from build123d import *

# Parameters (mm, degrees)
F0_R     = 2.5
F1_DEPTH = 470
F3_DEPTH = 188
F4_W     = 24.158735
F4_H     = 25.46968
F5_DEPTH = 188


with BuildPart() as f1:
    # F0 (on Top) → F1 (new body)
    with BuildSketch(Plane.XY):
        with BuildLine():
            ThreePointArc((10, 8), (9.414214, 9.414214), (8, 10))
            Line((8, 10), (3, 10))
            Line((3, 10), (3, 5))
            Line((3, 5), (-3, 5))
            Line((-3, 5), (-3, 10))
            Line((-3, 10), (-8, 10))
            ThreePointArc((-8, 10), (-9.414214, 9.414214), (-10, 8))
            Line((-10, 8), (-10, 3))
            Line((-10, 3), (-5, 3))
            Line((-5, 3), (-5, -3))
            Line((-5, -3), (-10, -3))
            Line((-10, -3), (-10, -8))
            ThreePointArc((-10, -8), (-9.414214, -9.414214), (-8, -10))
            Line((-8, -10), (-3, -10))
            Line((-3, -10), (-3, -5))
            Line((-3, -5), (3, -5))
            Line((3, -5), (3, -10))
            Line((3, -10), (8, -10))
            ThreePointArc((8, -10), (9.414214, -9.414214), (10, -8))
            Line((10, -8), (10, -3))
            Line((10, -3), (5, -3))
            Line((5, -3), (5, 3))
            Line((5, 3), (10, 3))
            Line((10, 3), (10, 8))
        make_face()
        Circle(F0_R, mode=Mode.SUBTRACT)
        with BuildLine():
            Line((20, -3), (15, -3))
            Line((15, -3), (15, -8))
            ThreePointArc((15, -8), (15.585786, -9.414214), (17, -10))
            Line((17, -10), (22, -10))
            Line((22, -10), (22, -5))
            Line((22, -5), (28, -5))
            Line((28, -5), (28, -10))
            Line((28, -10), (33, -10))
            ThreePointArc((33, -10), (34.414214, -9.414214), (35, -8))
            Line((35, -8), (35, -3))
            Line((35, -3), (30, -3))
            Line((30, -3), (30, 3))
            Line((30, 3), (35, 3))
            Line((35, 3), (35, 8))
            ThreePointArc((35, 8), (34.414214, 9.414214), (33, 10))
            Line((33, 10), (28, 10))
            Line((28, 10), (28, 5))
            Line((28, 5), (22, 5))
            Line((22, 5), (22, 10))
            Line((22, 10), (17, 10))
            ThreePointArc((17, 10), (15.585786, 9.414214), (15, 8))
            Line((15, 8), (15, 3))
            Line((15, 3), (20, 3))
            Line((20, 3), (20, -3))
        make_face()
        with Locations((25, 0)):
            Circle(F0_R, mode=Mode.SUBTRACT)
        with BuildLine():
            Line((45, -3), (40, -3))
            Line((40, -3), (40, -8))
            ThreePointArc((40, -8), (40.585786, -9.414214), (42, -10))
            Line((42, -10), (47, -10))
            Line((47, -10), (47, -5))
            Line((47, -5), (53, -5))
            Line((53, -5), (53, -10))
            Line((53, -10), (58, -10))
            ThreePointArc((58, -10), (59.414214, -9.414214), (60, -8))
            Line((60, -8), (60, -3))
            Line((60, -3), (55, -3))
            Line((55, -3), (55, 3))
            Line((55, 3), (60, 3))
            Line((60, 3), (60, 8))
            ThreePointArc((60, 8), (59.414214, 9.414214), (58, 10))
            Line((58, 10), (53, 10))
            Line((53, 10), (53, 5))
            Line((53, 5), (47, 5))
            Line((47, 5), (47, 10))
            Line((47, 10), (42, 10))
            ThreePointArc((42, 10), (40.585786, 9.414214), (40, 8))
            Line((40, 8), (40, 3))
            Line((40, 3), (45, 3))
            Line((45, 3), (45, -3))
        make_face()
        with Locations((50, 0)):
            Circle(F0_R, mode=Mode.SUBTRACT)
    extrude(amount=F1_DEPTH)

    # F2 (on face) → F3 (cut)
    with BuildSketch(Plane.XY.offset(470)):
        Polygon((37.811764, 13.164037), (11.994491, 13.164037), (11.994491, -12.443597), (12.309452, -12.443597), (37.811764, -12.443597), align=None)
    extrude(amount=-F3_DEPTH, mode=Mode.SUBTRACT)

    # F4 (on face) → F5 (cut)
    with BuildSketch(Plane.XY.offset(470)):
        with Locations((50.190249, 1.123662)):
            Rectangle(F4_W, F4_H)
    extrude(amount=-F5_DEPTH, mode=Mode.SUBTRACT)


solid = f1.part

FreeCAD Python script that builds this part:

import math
import FreeCAD as App
import Part
import Sketcher
from FreeCAD import Vector


def add_polygon(sketch, points):
    """Adds a closed chain of lines whose ends are joined by coincident constraints."""
    first, n = sketch.GeometryCount, len(points)
    for a, b in zip(points, points[1:] + points[:1]):
        sketch.addGeometry(Part.LineSegment(App.Vector(*a, 0), App.Vector(*b, 0)), False)
    for i in range(n):
        sketch.addConstraint(Sketcher.Constraint("Coincident", first + i, 2, first + (i + 1) % n, 1))

doc = App.newDocument("Part")
body = doc.addObject("PartDesign::Body", "Body")
body.AllowCompound = True

# Sketch on XY plane
sketch1 = body.newObject("Sketcher::SketchObject", "Sketch")
sketch1.AttachmentSupport = (doc.getObject("XY_Plane"), [""])
sketch1.MapMode = "FlatFace"
sketch1.addGeometry(Part.ArcOfCircle(Part.Circle(Vector(8.000001, 8.000001, 0), Vector(0, 0, 1), 1.999999), math.radians(-0.000043), math.radians(90.000043)), False)
sketch1.addGeometry(Part.LineSegment(Vector(8, 10, 0), Vector(3, 10, 0)), False)
sketch1.addGeometry(Part.LineSegment(Vector(3, 10, 0), Vector(3, 5, 0)), False)
sketch1.addGeometry(Part.LineSegment(Vector(3, 5, 0), Vector(-3, 5, 0)), False)
sketch1.addGeometry(Part.LineSegment(Vector(-3, 5, 0), Vector(-3, 10, 0)), False)
sketch1.addGeometry(Part.LineSegment(Vector(-3, 10, 0), Vector(-8, 10, 0)), False)
sketch1.addGeometry(Part.ArcOfCircle(Part.Circle(Vector(-8.000001, 8.000001, 0), Vector(0, 0, 1), 1.999999), math.radians(89.999957), math.radians(180.000043)), False)
sketch1.addGeometry(Part.LineSegment(Vector(-10, 8, 0), Vector(-10, 3, 0)), False)
sketch1.addGeometry(Part.LineSegment(Vector(-10, 3, 0), Vector(-5, 3, 0)), False)
sketch1.addGeometry(Part.LineSegment(Vector(-5, 3, 0), Vector(-5, -3, 0)), False)
sketch1.addGeometry(Part.LineSegment(Vector(-5, -3, 0), Vector(-10, -3, 0)), False)
sketch1.addGeometry(Part.LineSegment(Vector(-10, -3, 0), Vector(-10, -8, 0)), False)
sketch1.addGeometry(Part.ArcOfCircle(Part.Circle(Vector(-8.000001, -8.000001, 0), Vector(0, 0, 1), 1.999999), math.radians(179.999957), math.radians(270.000043)), False)
sketch1.addGeometry(Part.LineSegment(Vector(-8, -10, 0), Vector(-3, -10, 0)), False)
sketch1.addGeometry(Part.LineSegment(Vector(-3, -10, 0), Vector(-3, -5, 0)), False)
sketch1.addGeometry(Part.LineSegment(Vector(-3, -5, 0), Vector(3, -5, 0)), False)
sketch1.addGeometry(Part.LineSegment(Vector(3, -5, 0), Vector(3, -10, 0)), False)
sketch1.addGeometry(Part.LineSegment(Vector(3, -10, 0), Vector(8, -10, 0)), False)
sketch1.addGeometry(Part.ArcOfCircle(Part.Circle(Vector(8.000001, -8.000001, 0), Vector(0, 0, 1), 1.999999), math.radians(-90.000043), math.radians(0.000043)), False)
sketch1.addGeometry(Part.LineSegment(Vector(10, -8, 0), Vector(10, -3, 0)), False)
sketch1.addGeometry(Part.LineSegment(Vector(10, -3, 0), Vector(5, -3, 0)), False)
sketch1.addGeometry(Part.LineSegment(Vector(5, -3, 0), Vector(5, 3, 0)), False)
sketch1.addGeometry(Part.LineSegment(Vector(5, 3, 0), Vector(10, 3, 0)), False)
sketch1.addGeometry(Part.LineSegment(Vector(10, 3, 0), Vector(10, 8, 0)), False)
sketch1.addGeometry(Part.Circle(Vector(0, 0, 0), Vector(0, 0, 1), 2.5), False)
sketch1.addGeometry(Part.LineSegment(Vector(20, -3, 0), Vector(15, -3, 0)), False)
sketch1.addGeometry(Part.LineSegment(Vector(15, -3, 0), Vector(15, -8, 0)), False)
sketch1.addGeometry(Part.ArcOfCircle(Part.Circle(Vector(16.999999, -8.000001, 0), Vector(0, 0, 1), 1.999999), math.radians(179.999957), math.radians(270.000043)), False)
sketch1.addGeometry(Part.LineSegment(Vector(17, -10, 0), Vector(22, -10, 0)), False)
sketch1.addGeometry(Part.LineSegment(Vector(22, -10, 0), Vector(22, -5, 0)), False)
sketch1.addGeometry(Part.LineSegment(Vector(22, -5, 0), Vector(28, -5, 0)), False)
sketch1.addGeometry(Part.LineSegment(Vector(28, -5, 0), Vector(28, -10, 0)), False)
sketch1.addGeometry(Part.LineSegment(Vector(28, -10, 0), Vector(33, -10, 0)), False)
sketch1.addGeometry(Part.ArcOfCircle(Part.Circle(Vector(33.000001, -8.000001, 0), Vector(0, 0, 1), 1.999999), math.radians(-90.000043), math.radians(0.000043)), False)
sketch1.addGeometry(Part.LineSegment(Vector(35, -8, 0), Vector(35, -3, 0)), False)
sketch1.addGeometry(Part.LineSegment(Vector(35, -3, 0), Vector(30, -3, 0)), False)
sketch1.addGeometry(Part.LineSegment(Vector(30, -3, 0), Vector(30, 3, 0)), False)
sketch1.addGeometry(Part.LineSegment(Vector(30, 3, 0), Vector(35, 3, 0)), False)
sketch1.addGeometry(Part.LineSegment(Vector(35, 3, 0), Vector(35, 8, 0)), False)
sketch1.addGeometry(Part.ArcOfCircle(Part.Circle(Vector(33.000001, 8.000001, 0), Vector(0, 0, 1), 1.999999), math.radians(-0.000043), math.radians(90.000043)), False)
sketch1.addGeometry(Part.LineSegment(Vector(33, 10, 0), Vector(28, 10, 0)), False)
sketch1.addGeometry(Part.LineSegment(Vector(28, 10, 0), Vector(28, 5, 0)), False)
sketch1.addGeometry(Part.LineSegment(Vector(28, 5, 0), Vector(22, 5, 0)), False)
sketch1.addGeometry(Part.LineSegment(Vector(22, 5, 0), Vector(22, 10, 0)), False)
sketch1.addGeometry(Part.LineSegment(Vector(22, 10, 0), Vector(17, 10, 0)), False)
sketch1.addGeometry(Part.ArcOfCircle(Part.Circle(Vector(16.999999, 8.000001, 0), Vector(0, 0, 1), 1.999999), math.radians(89.999957), math.radians(180.000043)), False)
sketch1.addGeometry(Part.LineSegment(Vector(15, 8, 0), Vector(15, 3, 0)), False)
sketch1.addGeometry(Part.LineSegment(Vector(15, 3, 0), Vector(20, 3, 0)), False)
sketch1.addGeometry(Part.LineSegment(Vector(20, 3, 0), Vector(20, -3, 0)), False)
sketch1.addGeometry(Part.Circle(Vector(25, 0, 0), Vector(0, 0, 1), 2.5), False)
sketch1.addGeometry(Part.LineSegment(Vector(45, -3, 0), Vector(40, -3, 0)), False)
sketch1.addGeometry(Part.LineSegment(Vector(40, -3, 0), Vector(40, -8, 0)), False)
sketch1.addGeometry(Part.ArcOfCircle(Part.Circle(Vector(41.999999, -8.000001, 0), Vector(0, 0, 1), 1.999999), math.radians(179.999957), math.radians(270.000043)), False)
sketch1.addGeometry(Part.LineSegment(Vector(42, -10, 0), Vector(47, -10, 0)), False)
sketch1.addGeometry(Part.LineSegment(Vector(47, -10, 0), Vector(47, -5, 0)), False)
sketch1.addGeometry(Part.LineSegment(Vector(47, -5, 0), Vector(53, -5, 0)), False)
sketch1.addGeometry(Part.LineSegment(Vector(53, -5, 0), Vector(53, -10, 0)), False)
sketch1.addGeometry(Part.LineSegment(Vector(53, -10, 0), Vector(58, -10, 0)), False)
sketch1.addGeometry(Part.ArcOfCircle(Part.Circle(Vector(58.000001, -8.000001, 0), Vector(0, 0, 1), 1.999999), math.radians(-90.000043), math.radians(0.000043)), False)
sketch1.addGeometry(Part.LineSegment(Vector(60, -8, 0), Vector(60, -3, 0)), False)
sketch1.addGeometry(Part.LineSegment(Vector(60, -3, 0), Vector(55, -3, 0)), False)
sketch1.addGeometry(Part.LineSegment(Vector(55, -3, 0), Vector(55, 3, 0)), False)
sketch1.addGeometry(Part.LineSegment(Vector(55, 3, 0), Vector(60, 3, 0)), False)
sketch1.addGeometry(Part.LineSegment(Vector(60, 3, 0), Vector(60, 8, 0)), False)
sketch1.addGeometry(Part.ArcOfCircle(Part.Circle(Vector(58.000001, 8.000001, 0), Vector(0, 0, 1), 1.999999), math.radians(-0.000043), math.radians(90.000043)), False)
sketch1.addGeometry(Part.LineSegment(Vector(58, 10, 0), Vector(53, 10, 0)), False)
sketch1.addGeometry(Part.LineSegment(Vector(53, 10, 0), Vector(53, 5, 0)), False)
sketch1.addGeometry(Part.LineSegment(Vector(53, 5, 0), Vector(47, 5, 0)), False)
sketch1.addGeometry(Part.LineSegment(Vector(47, 5, 0), Vector(47, 10, 0)), False)
sketch1.addGeometry(Part.LineSegment(Vector(47, 10, 0), Vector(42, 10, 0)), False)
sketch1.addGeometry(Part.ArcOfCircle(Part.Circle(Vector(41.999999, 8.000001, 0), Vector(0, 0, 1), 1.999999), math.radians(89.999957), math.radians(180.000043)), False)
sketch1.addGeometry(Part.LineSegment(Vector(40, 8, 0), Vector(40, 3, 0)), False)
sketch1.addGeometry(Part.LineSegment(Vector(40, 3, 0), Vector(45, 3, 0)), False)
sketch1.addGeometry(Part.LineSegment(Vector(45, 3, 0), Vector(45, -3, 0)), False)
sketch1.addGeometry(Part.Circle(Vector(50, 0, 0), Vector(0, 0, 1), 2.5), False)
sketch1.addConstraint(Sketcher.Constraint("Tangent", 0, 2, 1, 1))
sketch1.addConstraint(Sketcher.Constraint("Coincident", 1, 2, 2, 1))
sketch1.addConstraint(Sketcher.Constraint("Coincident", 2, 2, 3, 1))
sketch1.addConstraint(Sketcher.Constraint("Coincident", 3, 2, 4, 1))
sketch1.addConstraint(Sketcher.Constraint("Coincident", 4, 2, 5, 1))
sketch1.addConstraint(Sketcher.Constraint("Tangent", 5, 2, 6, 1))
sketch1.addConstraint(Sketcher.Constraint("Tangent", 6, 2, 7, 1))
sketch1.addConstraint(Sketcher.Constraint("Coincident", 7, 2, 8, 1))
sketch1.addConstraint(Sketcher.Constraint("Coincident", 8, 2, 9, 1))
sketch1.addConstraint(Sketcher.Constraint("Coincident", 9, 2, 10, 1))
sketch1.addConstraint(Sketcher.Constraint("Coincident", 10, 2, 11, 1))
sketch1.addConstraint(Sketcher.Constraint("Tangent", 11, 2, 12, 1))
sketch1.addConstraint(Sketcher.Constraint("Tangent", 12, 2, 13, 1))
sketch1.addConstraint(Sketcher.Constraint("Coincident", 13, 2, 14, 1))
sketch1.addConstraint(Sketcher.Constraint("Coincident", 14, 2, 15, 1))
sketch1.addConstraint(Sketcher.Constraint("Coincident", 15, 2, 16, 1))
sketch1.addConstraint(Sketcher.Constraint("Coincident", 16, 2, 17, 1))
sketch1.addConstraint(Sketcher.Constraint("Tangent", 17, 2, 18, 1))
sketch1.addConstraint(Sketcher.Constraint("Tangent", 18, 2, 19, 1))
sketch1.addConstraint(Sketcher.Constraint("Coincident", 19, 2, 20, 1))
sketch1.addConstraint(Sketcher.Constraint("Coincident", 20, 2, 21, 1))
sketch1.addConstraint(Sketcher.Constraint("Coincident", 21, 2, 22, 1))
sketch1.addConstraint(Sketcher.Constraint("Coincident", 22, 2, 23, 1))
sketch1.addConstraint(Sketcher.Constraint("Tangent", 23, 2, 0, 1))
sketch1.addConstraint(Sketcher.Constraint("Coincident", 25, 2, 26, 1))
sketch1.addConstraint(Sketcher.Constraint("Tangent", 26, 2, 27, 1))
sketch1.addConstraint(Sketcher.Constraint("Tangent", 27, 2, 28, 1))
sketch1.addConstraint(Sketcher.Constraint("Coincident", 28, 2, 29, 1))
sketch1.addConstraint(Sketcher.Constraint("Coincident", 29, 2, 30, 1))
sketch1.addConstraint(Sketcher.Constraint("Coincident", 30, 2, 31, 1))
sketch1.addConstraint(Sketcher.Constraint("Coincident", 31, 2, 32, 1))
sketch1.addConstraint(Sketcher.Constraint("Tangent", 32, 2, 33, 1))
sketch1.addConstraint(Sketcher.Constraint("Tangent", 33, 2, 34, 1))
sketch1.addConstraint(Sketcher.Constraint("Coincident", 34, 2, 35, 1))
sketch1.addConstraint(Sketcher.Constraint("Coincident", 35, 2, 36, 1))
sketch1.addConstraint(Sketcher.Constraint("Coincident", 36, 2, 37, 1))
sketch1.addConstraint(Sketcher.Constraint("Coincident", 37, 2, 38, 1))
sketch1.addConstraint(Sketcher.Constraint("Tangent", 38, 2, 39, 1))
sketch1.addConstraint(Sketcher.Constraint("Tangent", 39, 2, 40, 1))
sketch1.addConstraint(Sketcher.Constraint("Coincident", 40, 2, 41, 1))
sketch1.addConstraint(Sketcher.Constraint("Coincident", 41, 2, 42, 1))
sketch1.addConstraint(Sketcher.Constraint("Coincident", 42, 2, 43, 1))
sketch1.addConstraint(Sketcher.Constraint("Coincident", 43, 2, 44, 1))
sketch1.addConstraint(Sketcher.Constraint("Tangent", 44, 2, 45, 1))
sketch1.addConstraint(Sketcher.Constraint("Tangent", 45, 2, 46, 1))
sketch1.addConstraint(Sketcher.Constraint("Coincident", 46, 2, 47, 1))
sketch1.addConstraint(Sketcher.Constraint("Coincident", 47, 2, 48, 1))
sketch1.addConstraint(Sketcher.Constraint("Coincident", 48, 2, 25, 1))
sketch1.addConstraint(Sketcher.Constraint("Coincident", 50, 2, 51, 1))
sketch1.addConstraint(Sketcher.Constraint("Tangent", 51, 2, 52, 1))
sketch1.addConstraint(Sketcher.Constraint("Tangent", 52, 2, 53, 1))
sketch1.addConstraint(Sketcher.Constraint("Coincident", 53, 2, 54, 1))
sketch1.addConstraint(Sketcher.Constraint("Coincident", 54, 2, 55, 1))
sketch1.addConstraint(Sketcher.Constraint("Coincident", 55, 2, 56, 1))
sketch1.addConstraint(Sketcher.Constraint("Coincident", 56, 2, 57, 1))
sketch1.addConstraint(Sketcher.Constraint("Tangent", 57, 2, 58, 1))
sketch1.addConstraint(Sketcher.Constraint("Tangent", 58, 2, 59, 1))
sketch1.addConstraint(Sketcher.Constraint("Coincident", 59, 2, 60, 1))
sketch1.addConstraint(Sketcher.Constraint("Coincident", 60, 2, 61, 1))
sketch1.addConstraint(Sketcher.Constraint("Coincident", 61, 2, 62, 1))
sketch1.addConstraint(Sketcher.Constraint("Coincident", 62, 2, 63, 1))
sketch1.addConstraint(Sketcher.Constraint("Tangent", 63, 2, 64, 1))
sketch1.addConstraint(Sketcher.Constraint("Tangent", 64, 2, 65, 1))
sketch1.addConstraint(Sketcher.Constraint("Coincident", 65, 2, 66, 1))
sketch1.addConstraint(Sketcher.Constraint("Coincident", 66, 2, 67, 1))
sketch1.addConstraint(Sketcher.Constraint("Coincident", 67, 2, 68, 1))
sketch1.addConstraint(Sketcher.Constraint("Coincident", 68, 2, 69, 1))
sketch1.addConstraint(Sketcher.Constraint("Tangent", 69, 2, 70, 1))
sketch1.addConstraint(Sketcher.Constraint("Tangent", 70, 2, 71, 1))
sketch1.addConstraint(Sketcher.Constraint("Coincident", 71, 2, 72, 1))
sketch1.addConstraint(Sketcher.Constraint("Coincident", 72, 2, 73, 1))
sketch1.addConstraint(Sketcher.Constraint("Coincident", 73, 2, 50, 1))
sketch1.addConstraint(Sketcher.Constraint("Horizontal", 1))
sketch1.addConstraint(Sketcher.Constraint("Vertical", 2))
sketch1.addConstraint(Sketcher.Constraint("Horizontal", 3))
sketch1.addConstraint(Sketcher.Constraint("Vertical", 4))
sketch1.addConstraint(Sketcher.Constraint("Horizontal", 5))
sketch1.addConstraint(Sketcher.Constraint("Vertical", 7))
sketch1.addConstraint(Sketcher.Constraint("Horizontal", 8))
sketch1.addConstraint(Sketcher.Constraint("Vertical", 9))
sketch1.addConstraint(Sketcher.Constraint("Horizontal", 10))
sketch1.addConstraint(Sketcher.Constraint("Vertical", 11))
sketch1.addConstraint(Sketcher.Constraint("Horizontal", 13))
sketch1.addConstraint(Sketcher.Constraint("Vertical", 14))
sketch1.addConstraint(Sketcher.Constraint("Horizontal", 15))
sketch1.addConstraint(Sketcher.Constraint("Vertical", 16))
sketch1.addConstraint(Sketcher.Constraint("Horizontal", 17))
sketch1.addConstraint(Sketcher.Constraint("Vertical", 19))
sketch1.addConstraint(Sketcher.Constraint("Horizontal", 20))
sketch1.addConstraint(Sketcher.Constraint("Vertical", 21))
sketch1.addConstraint(Sketcher.Constraint("Horizontal", 22))
sketch1.addConstraint(Sketcher.Constraint("Vertical", 23))
sketch1.addConstraint(Sketcher.Constraint("Horizontal", 25))
sketch1.addConstraint(Sketcher.Constraint("Vertical", 26))
sketch1.addConstraint(Sketcher.Constraint("Horizontal", 28))
sketch1.addConstraint(Sketcher.Constraint("Vertical", 29))
sketch1.addConstraint(Sketcher.Constraint("Horizontal", 30))
sketch1.addConstraint(Sketcher.Constraint("Vertical", 31))
sketch1.addConstraint(Sketcher.Constraint("Horizontal", 32))
sketch1.addConstraint(Sketcher.Constraint("Vertical", 34))
sketch1.addConstraint(Sketcher.Constraint("Horizontal", 35))
sketch1.addConstraint(Sketcher.Constraint("Vertical", 36))
sketch1.addConstraint(Sketcher.Constraint("Horizontal", 37))
sketch1.addConstraint(Sketcher.Constraint("Vertical", 38))
sketch1.addConstraint(Sketcher.Constraint("Horizontal", 40))
sketch1.addConstraint(Sketcher.Constraint("Vertical", 41))
sketch1.addConstraint(Sketcher.Constraint("Horizontal", 42))
sketch1.addConstraint(Sketcher.Constraint("Vertical", 43))
sketch1.addConstraint(Sketcher.Constraint("Horizontal", 44))
sketch1.addConstraint(Sketcher.Constraint("Vertical", 46))
sketch1.addConstraint(Sketcher.Constraint("Horizontal", 47))
sketch1.addConstraint(Sketcher.Constraint("Vertical", 48))
sketch1.addConstraint(Sketcher.Constraint("Horizontal", 50))
sketch1.addConstraint(Sketcher.Constraint("Vertical", 51))
sketch1.addConstraint(Sketcher.Constraint("Horizontal", 53))
sketch1.addConstraint(Sketcher.Constraint("Vertical", 54))
sketch1.addConstraint(Sketcher.Constraint("Horizontal", 55))
sketch1.addConstraint(Sketcher.Constraint("Vertical", 56))
sketch1.addConstraint(Sketcher.Constraint("Horizontal", 57))
sketch1.addConstraint(Sketcher.Constraint("Vertical", 59))
sketch1.addConstraint(Sketcher.Constraint("Horizontal", 60))
sketch1.addConstraint(Sketcher.Constraint("Vertical", 61))
sketch1.addConstraint(Sketcher.Constraint("Horizontal", 62))
sketch1.addConstraint(Sketcher.Constraint("Vertical", 63))
sketch1.addConstraint(Sketcher.Constraint("Horizontal", 65))
sketch1.addConstraint(Sketcher.Constraint("Vertical", 66))
sketch1.addConstraint(Sketcher.Constraint("Horizontal", 67))
sketch1.addConstraint(Sketcher.Constraint("Vertical", 68))
sketch1.addConstraint(Sketcher.Constraint("Horizontal", 69))
sketch1.addConstraint(Sketcher.Constraint("Vertical", 71))
sketch1.addConstraint(Sketcher.Constraint("Horizontal", 72))
sketch1.addConstraint(Sketcher.Constraint("Vertical", 73))
sketch1.addConstraint(Sketcher.Constraint("Coincident", 24, 3, -1, 1))
sketch1.addConstraint(Sketcher.Constraint("Equal", 0, 6))
sketch1.addConstraint(Sketcher.Constraint("Equal", 6, 12))
sketch1.addConstraint(Sketcher.Constraint("Equal", 12, 18))
sketch1.addConstraint(Sketcher.Constraint("Equal", 18, 27))
sketch1.addConstraint(Sketcher.Constraint("Equal", 27, 33))
sketch1.addConstraint(Sketcher.Constraint("Equal", 33, 39))
sketch1.addConstraint(Sketcher.Constraint("Equal", 39, 45))
sketch1.addConstraint(Sketcher.Constraint("Equal", 24, 49))
sketch1.addConstraint(Sketcher.Constraint("Equal", 45, 52))
sketch1.addConstraint(Sketcher.Constraint("Equal", 52, 58))
sketch1.addConstraint(Sketcher.Constraint("Equal", 58, 64))
sketch1.addConstraint(Sketcher.Constraint("Equal", 64, 70))
sketch1.addConstraint(Sketcher.Constraint("Equal", 49, 74))
sketch1.addConstraint(Sketcher.Constraint("Symmetric", 0, 3, 12, 3, -1, 1))
sketch1.addConstraint(Sketcher.Constraint("Symmetric", 6, 3, 18, 3, -1, 1))
sketch1.addConstraint(Sketcher.Constraint("Symmetric", 2, 2, 14, 2, -1, 1))
sketch1.addConstraint(Sketcher.Constraint("Symmetric", 8, 2, 20, 2, -1, 1))
sketch1.addConstraint(Sketcher.Constraint("Symmetric", 0, 3, 6, 3, -2))
sketch1.addConstraint(Sketcher.Constraint("Symmetric", 33, 3, 39, 3, -1))
sketch1.addConstraint(Sketcher.Constraint("Symmetric", 27, 3, 45, 3, -1))
sketch1.addConstraint(Sketcher.Constraint("Symmetric", 58, 3, 64, 3, -1))
sketch1.addConstraint(Sketcher.Constraint("Symmetric", 52, 3, 70, 3, -1))
sketch1.addConstraint(Sketcher.Constraint("Symmetric", 30, 2, 41, 2, -1))
sketch1.addConstraint(Sketcher.Constraint("Symmetric", 55, 2, 66, 2, -1))
sketch1.addConstraint(Sketcher.Constraint("PointOnObject", 49, 3, -1))
sketch1.addConstraint(Sketcher.Constraint("PointOnObject", 74, 3, -1))
sketch1.addConstraint(Sketcher.Constraint("Horizontal", 18, 3, 27, 3))
sketch1.addConstraint(Sketcher.Constraint("Horizontal", 27, 3, 33, 3))
sketch1.addConstraint(Sketcher.Constraint("Horizontal", 33, 3, 52, 3))
sketch1.addConstraint(Sketcher.Constraint("Horizontal", 52, 3, 58, 3))
sketch1.addConstraint(Sketcher.Constraint("Horizontal", 10, 2, 19, 2))
sketch1.addConstraint(Sketcher.Constraint("Horizontal", 8, 2, 21, 2))
sketch1.addConstraint(Sketcher.Constraint("Horizontal", 20, 2, 25, 2))
sketch1.addConstraint(Sketcher.Constraint("Horizontal", 15, 2, 29, 2))
sketch1.addConstraint(Sketcher.Constraint("Horizontal", 25, 2, 34, 2))
sketch1.addConstraint(Sketcher.Constraint("Horizontal", 22, 2, 36, 2))
sketch1.addConstraint(Sketcher.Constraint("Horizontal", 37, 2, 46, 2))
sketch1.addConstraint(Sketcher.Constraint("Horizontal", 48, 2, 50, 2))
sketch1.addConstraint(Sketcher.Constraint("Horizontal", 30, 2, 54, 2))
sketch1.addConstraint(Sketcher.Constraint("Horizontal", 50, 2, 59, 2))
sketch1.addConstraint(Sketcher.Constraint("Horizontal", 47, 2, 61, 2))
sketch1.addConstraint(Sketcher.Constraint("Horizontal", 62, 2, 71, 2))
sketch1.addConstraint(Sketcher.Constraint("Vertical", 4, 2, 13, 2))
sketch1.addConstraint(Sketcher.Constraint("Vertical", 2, 2, 15, 2))
sketch1.addConstraint(Sketcher.Constraint("Vertical", 29, 2, 42, 2))
sketch1.addConstraint(Sketcher.Constraint("Vertical", 54, 2, 67, 2))
sketch1.addConstraint(Sketcher.Constraint("Equal", 5, 8))
sketch1.addConstraint(Sketcher.Constraint("Equal", 22, 25))
sketch1.addConstraint(Sketcher.Constraint("Equal", 25, 28))
sketch1.addConstraint(Sketcher.Constraint("Equal", 15, 30))
sketch1.addConstraint(Sketcher.Constraint("Equal", 28, 32))
sketch1.addConstraint(Sketcher.Constraint("Equal", 32, 35))
sketch1.addConstraint(Sketcher.Constraint("Equal", 47, 50))
sketch1.addConstraint(Sketcher.Constraint("Equal", 50, 53))
sketch1.addConstraint(Sketcher.Constraint("Equal", 42, 55))
sketch1.addConstraint(Sketcher.Constraint("Equal", 53, 57))
sketch1.addConstraint(Sketcher.Constraint("Equal", 57, 60))
sketch1.addConstraint(Sketcher.Constraint("Equal", 72, 2))
sketch1.addConstraint(Sketcher.Constraint("Equal", 4, 7))
sketch1.addConstraint(Sketcher.Constraint("Equal", 67, 9))
sketch1.addConstraint(Sketcher.Constraint("Diameter", 24, 5.0))
sketch1.addConstraint(Sketcher.Constraint("Radius", 0, 1.999999))
sketch1.addConstraint(Sketcher.Constraint("DistanceX", 1, 2, 1, 1, 5.0))
sketch1.addConstraint(Sketcher.Constraint("DistanceX", 3, 2, 3, 1, 6.0))
sketch1.addConstraint(Sketcher.Constraint("DistanceX", -1, 1, 27, 3, 16.999999))
sketch1.addConstraint(Sketcher.Constraint("DistanceX", -1, 1, 49, 3, 25.0))
sketch1.addConstraint(Sketcher.Constraint("DistanceX", -1, 1, 52, 3, 41.999999))
sketch1.addConstraint(Sketcher.Constraint("DistanceX", -1, 1, 74, 3, 50.0))
pad1 = body.newObject("PartDesign::Pad", "Pad")
pad1.Profile = sketch1
pad1.Length = 470

# Sketch on XY plane
sketch2 = body.newObject("Sketcher::SketchObject", "Sketch001")
sketch2.AttachmentSupport = (doc.getObject("XY_Plane"), [""])
sketch2.MapMode = "FlatFace"
sketch2.AttachmentOffset = App.Placement(Vector(0, 0, 470), App.Rotation())
add_polygon(sketch2, [(37.811764, 13.164037), (11.994491, 13.164037), (11.994491, -12.443597), (37.811764, -12.443597)])  # lines 0-3
sketch2.addConstraint(Sketcher.Constraint("Horizontal", 0))
sketch2.addConstraint(Sketcher.Constraint("Vertical", 1))
sketch2.addConstraint(Sketcher.Constraint("Horizontal", 2))
sketch2.addConstraint(Sketcher.Constraint("Vertical", 3))
sketch2.addConstraint(Sketcher.Constraint("DistanceX", 0, 2, 0, 1, 25.817273))
sketch2.addConstraint(Sketcher.Constraint("DistanceY", 1, 2, 1, 1, 25.607634))
sketch2.addConstraint(Sketcher.Constraint("DistanceX", -1, 1, 0, 2, 11.994491))
sketch2.addConstraint(Sketcher.Constraint("DistanceY", -1, 1, 0, 2, 13.164037))
pocket1 = body.newObject("PartDesign::Pocket", "Pocket")
pocket1.Profile = sketch2
pocket1.Length = 188

# Sketch on XY plane
sketch3 = body.newObject("Sketcher::SketchObject", "Sketch002")
sketch3.AttachmentSupport = (doc.getObject("XY_Plane"), [""])
sketch3.MapMode = "FlatFace"
sketch3.AttachmentOffset = App.Placement(Vector(0, 0, 470), App.Rotation())
add_polygon(sketch3, [(38.110881, 13.858502), (38.110881, -11.611178), (62.269616, -11.611178), (62.269616, 13.858502)])  # lines 0-3
sketch3.addConstraint(Sketcher.Constraint("Vertical", 0))
sketch3.addConstraint(Sketcher.Constraint("Horizontal", 1))
sketch3.addConstraint(Sketcher.Constraint("Vertical", 2))
sketch3.addConstraint(Sketcher.Constraint("Horizontal", 3))
sketch3.addConstraint(Sketcher.Constraint("DistanceY", 0, 2, 0, 1, 25.46968))
sketch3.addConstraint(Sketcher.Constraint("DistanceX", 1, 1, 1, 2, 24.158735))
sketch3.addConstraint(Sketcher.Constraint("DistanceX", -1, 1, 0, 2, 38.110881))
sketch3.addConstraint(Sketcher.Constraint("DistanceY", 0, 2, -1, 1, 11.611178))
pocket2 = body.newObject("PartDesign::Pocket", "Pocket001")
pocket2.Profile = sketch3
pocket2.Length = 188

doc.recompute()
